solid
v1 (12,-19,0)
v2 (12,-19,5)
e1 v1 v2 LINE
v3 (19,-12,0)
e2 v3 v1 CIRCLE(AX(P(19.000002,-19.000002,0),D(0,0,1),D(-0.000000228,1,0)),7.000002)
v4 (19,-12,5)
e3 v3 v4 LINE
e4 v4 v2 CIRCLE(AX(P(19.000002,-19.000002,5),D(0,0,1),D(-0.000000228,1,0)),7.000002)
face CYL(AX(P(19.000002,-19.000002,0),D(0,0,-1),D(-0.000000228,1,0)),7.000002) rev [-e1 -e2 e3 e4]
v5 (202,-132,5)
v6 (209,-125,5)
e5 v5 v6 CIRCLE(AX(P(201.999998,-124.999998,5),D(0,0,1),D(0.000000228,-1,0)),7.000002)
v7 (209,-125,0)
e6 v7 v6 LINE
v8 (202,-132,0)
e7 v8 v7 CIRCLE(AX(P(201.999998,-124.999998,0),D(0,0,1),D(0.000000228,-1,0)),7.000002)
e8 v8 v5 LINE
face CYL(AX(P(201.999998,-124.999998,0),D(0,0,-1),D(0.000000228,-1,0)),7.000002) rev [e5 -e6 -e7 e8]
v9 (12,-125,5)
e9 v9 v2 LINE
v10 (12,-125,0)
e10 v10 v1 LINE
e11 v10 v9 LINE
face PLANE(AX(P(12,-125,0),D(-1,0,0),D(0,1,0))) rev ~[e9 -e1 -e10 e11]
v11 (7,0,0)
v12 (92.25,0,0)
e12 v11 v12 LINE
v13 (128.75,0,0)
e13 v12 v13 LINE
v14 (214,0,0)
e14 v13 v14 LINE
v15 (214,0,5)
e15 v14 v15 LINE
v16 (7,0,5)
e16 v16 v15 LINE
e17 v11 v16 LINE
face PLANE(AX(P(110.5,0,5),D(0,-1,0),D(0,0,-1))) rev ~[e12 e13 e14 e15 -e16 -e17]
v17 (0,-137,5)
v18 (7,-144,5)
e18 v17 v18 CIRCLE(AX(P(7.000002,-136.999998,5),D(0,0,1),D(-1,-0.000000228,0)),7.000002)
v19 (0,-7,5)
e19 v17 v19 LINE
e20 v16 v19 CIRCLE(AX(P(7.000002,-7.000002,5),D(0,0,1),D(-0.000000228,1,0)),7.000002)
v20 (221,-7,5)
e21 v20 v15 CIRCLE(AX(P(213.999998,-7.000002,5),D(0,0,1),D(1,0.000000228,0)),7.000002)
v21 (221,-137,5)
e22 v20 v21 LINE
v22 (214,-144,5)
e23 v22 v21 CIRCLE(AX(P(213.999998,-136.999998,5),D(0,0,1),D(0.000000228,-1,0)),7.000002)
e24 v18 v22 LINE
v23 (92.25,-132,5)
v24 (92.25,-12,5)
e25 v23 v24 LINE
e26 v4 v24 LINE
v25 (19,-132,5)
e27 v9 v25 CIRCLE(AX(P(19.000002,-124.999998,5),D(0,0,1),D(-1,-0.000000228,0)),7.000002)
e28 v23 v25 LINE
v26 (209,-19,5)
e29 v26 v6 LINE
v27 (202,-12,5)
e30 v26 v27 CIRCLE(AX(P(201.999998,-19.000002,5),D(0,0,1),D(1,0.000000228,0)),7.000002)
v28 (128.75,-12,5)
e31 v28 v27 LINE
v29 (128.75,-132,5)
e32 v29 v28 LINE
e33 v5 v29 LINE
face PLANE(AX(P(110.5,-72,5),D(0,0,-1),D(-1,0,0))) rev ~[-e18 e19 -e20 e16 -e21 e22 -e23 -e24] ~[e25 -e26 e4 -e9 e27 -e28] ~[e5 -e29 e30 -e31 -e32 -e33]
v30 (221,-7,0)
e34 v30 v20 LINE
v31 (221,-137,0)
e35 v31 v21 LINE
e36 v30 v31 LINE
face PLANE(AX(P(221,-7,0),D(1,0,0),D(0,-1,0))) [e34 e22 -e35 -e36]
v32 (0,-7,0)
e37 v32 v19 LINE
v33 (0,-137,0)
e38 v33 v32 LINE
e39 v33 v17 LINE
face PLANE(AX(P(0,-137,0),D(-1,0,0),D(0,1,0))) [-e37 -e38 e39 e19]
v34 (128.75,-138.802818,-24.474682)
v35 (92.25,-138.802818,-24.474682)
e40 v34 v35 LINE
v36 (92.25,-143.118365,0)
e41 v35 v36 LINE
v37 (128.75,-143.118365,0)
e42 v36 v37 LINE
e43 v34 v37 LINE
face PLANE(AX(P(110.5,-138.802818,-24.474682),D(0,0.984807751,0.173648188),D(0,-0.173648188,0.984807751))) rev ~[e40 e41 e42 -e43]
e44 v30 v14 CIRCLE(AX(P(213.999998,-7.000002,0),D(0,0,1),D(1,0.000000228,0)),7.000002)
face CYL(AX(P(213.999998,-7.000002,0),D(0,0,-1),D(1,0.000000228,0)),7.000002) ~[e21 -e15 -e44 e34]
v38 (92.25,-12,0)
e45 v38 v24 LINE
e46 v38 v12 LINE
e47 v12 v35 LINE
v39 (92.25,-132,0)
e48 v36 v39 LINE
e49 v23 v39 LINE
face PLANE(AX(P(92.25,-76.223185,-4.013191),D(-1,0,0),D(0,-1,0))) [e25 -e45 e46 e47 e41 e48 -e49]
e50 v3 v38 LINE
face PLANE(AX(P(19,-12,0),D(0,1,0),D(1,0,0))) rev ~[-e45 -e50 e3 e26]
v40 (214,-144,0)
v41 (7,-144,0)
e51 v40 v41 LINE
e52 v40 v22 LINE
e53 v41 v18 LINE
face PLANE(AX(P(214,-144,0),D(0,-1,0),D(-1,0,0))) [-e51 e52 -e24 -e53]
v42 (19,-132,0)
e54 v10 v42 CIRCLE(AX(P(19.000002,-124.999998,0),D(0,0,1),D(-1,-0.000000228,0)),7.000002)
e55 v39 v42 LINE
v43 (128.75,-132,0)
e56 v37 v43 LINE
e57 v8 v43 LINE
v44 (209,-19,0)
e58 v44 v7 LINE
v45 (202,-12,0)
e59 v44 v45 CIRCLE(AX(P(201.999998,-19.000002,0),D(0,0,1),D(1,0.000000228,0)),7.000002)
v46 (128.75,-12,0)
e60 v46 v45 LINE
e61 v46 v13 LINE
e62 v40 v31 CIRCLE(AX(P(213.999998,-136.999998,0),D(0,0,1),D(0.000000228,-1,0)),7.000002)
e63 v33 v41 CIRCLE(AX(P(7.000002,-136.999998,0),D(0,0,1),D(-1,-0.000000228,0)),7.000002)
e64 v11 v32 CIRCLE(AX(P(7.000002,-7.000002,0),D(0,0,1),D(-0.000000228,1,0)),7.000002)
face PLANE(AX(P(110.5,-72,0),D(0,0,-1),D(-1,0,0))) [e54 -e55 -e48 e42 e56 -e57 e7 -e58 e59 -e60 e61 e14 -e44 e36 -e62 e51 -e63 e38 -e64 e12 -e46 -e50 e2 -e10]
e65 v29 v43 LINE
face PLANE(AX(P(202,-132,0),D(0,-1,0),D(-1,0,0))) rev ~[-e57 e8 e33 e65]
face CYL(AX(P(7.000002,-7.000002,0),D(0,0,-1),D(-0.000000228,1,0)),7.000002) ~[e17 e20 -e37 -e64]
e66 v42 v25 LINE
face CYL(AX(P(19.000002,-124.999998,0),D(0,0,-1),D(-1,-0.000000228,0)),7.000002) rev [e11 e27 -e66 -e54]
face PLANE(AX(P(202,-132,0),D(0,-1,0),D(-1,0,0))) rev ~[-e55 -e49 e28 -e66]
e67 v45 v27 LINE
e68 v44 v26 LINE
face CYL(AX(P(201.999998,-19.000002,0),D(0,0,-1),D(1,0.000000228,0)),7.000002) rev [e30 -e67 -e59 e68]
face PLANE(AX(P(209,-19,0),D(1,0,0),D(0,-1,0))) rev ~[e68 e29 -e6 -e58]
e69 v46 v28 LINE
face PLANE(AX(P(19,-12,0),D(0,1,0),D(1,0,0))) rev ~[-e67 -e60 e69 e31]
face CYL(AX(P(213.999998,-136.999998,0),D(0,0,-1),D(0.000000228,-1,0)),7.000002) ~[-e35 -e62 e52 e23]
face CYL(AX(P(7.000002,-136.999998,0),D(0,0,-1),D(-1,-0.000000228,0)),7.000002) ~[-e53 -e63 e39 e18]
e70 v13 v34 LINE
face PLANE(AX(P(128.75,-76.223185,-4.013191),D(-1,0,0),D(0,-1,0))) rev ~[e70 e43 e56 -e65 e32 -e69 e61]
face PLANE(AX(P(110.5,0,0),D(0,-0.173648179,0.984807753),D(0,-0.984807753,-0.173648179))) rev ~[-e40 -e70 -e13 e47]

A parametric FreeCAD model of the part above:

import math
import FreeCAD as App
import Part
import Sketcher

V = App.Vector
Q = App.Units.Quantity


def add_polygon(sketch, points):
    """Adds a closed chain of lines whose ends are joined by coincident constraints."""
    first, n = sketch.GeometryCount, len(points)
    for a, b in zip(points, points[1:] + points[:1]):
        sketch.addGeometry(Part.LineSegment(App.Vector(*a, 0), App.Vector(*b, 0)), False)
    for i in range(n):
        sketch.addConstraint(Sketcher.Constraint("Coincident", first + i, 2, first + (i + 1) % n, 1))

doc = App.newDocument("Part")
params = doc.addObject("Spreadsheet::Sheet", "Params")
for row, (alias, value) in enumerate([
    ("sketch1_radius", "7.000002 mm"),
    ("sketch1_width", "207 mm"),
    ("sketch1_width2", "183 mm"),
    ("sketch1_height", "130 mm"),
    ("sketch1_height2", "106 mm"),
    ("pad1_length", "5 mm"),
    ("sketch2_width", "144 mm"),
    ("sketch2_height", "5 mm"),
    ("pad2_length", "36.5 mm"),
], start=1):
    params.set(f"A{row}", alias)
    params.set(f"B{row}", "=" + value)
    params.setAlias(f"B{row}", alias)

body = doc.addObject("PartDesign::Body", "Body")

# Sketch on XY plane
sketch1 = body.newObject("Sketcher::SketchObject", "Sketch")
sketch1.AttachmentSupport = (doc.getObject("XY_Plane"), [""])
sketch1.MapMode = "FlatFace"
sketch1.addGeometry([
    Part.LineSegment(V(214, 0, 0), V(7, 0, 0)),  # 0
    Part.ArcOfCircle(Part.Circle(V(7, -7, 0), V(0, 0, 1), 7), math.radians(90), math.radians(180)),  # 1
    Part.LineSegment(V(0, -7, 0), V(0, -137, 0)),  # 2
    Part.ArcOfCircle(Part.Circle(V(7, -137, 0), V(0, 0, 1), 7), math.radians(-180), math.radians(-90)),  # 3
    Part.LineSegment(V(7, -144, 0), V(214, -144, 0)),  # 4
    Part.ArcOfCircle(Part.Circle(V(214, -137, 0), V(0, 0, 1), 7), math.radians(-90), math.radians(0)),  # 5
    Part.LineSegment(V(221, -137, 0), V(221, -7, 0)),  # 6
    Part.ArcOfCircle(Part.Circle(V(214, -7, 0), V(0, 0, 1), 7), math.radians(0), math.radians(90)),  # 7
    Part.LineSegment(V(19, -12, 0), V(202, -12, 0)),  # 8
    Part.ArcOfCircle(Part.Circle(V(202, -19, 0), V(0, 0, 1), 7), math.radians(0), math.radians(90)),  # 9
    Part.LineSegment(V(209, -19, 0), V(209, -125, 0)),  # 10
    Part.ArcOfCircle(Part.Circle(V(202, -125, 0), V(0, 0, 1), 7), math.radians(-90), math.radians(0)),  # 11
    Part.LineSegment(V(202, -132, 0), V(19, -132, 0)),  # 12
    Part.ArcOfCircle(Part.Circle(V(19, -125, 0), V(0, 0, 1), 7), math.radians(-180), math.radians(-90)),  # 13
    Part.LineSegment(V(12, -125, 0), V(12, -19, 0)),  # 14
    Part.ArcOfCircle(Part.Circle(V(19, -19, 0), V(0, 0, 1), 7), math.radians(90), math.radians(180)),  # 15
], False)
sketch1.addConstraint([
    Sketcher.Constraint("Tangent", 0, 2, 1, 1),
    Sketcher.Constraint("Tangent", 1, 2, 2, 1),
    Sketcher.Constraint("Tangent", 2, 2, 3, 1),
    Sketcher.Constraint("Tangent", 3, 2, 4, 1),
    Sketcher.Constraint("Tangent", 4, 2, 5, 1),
    Sketcher.Constraint("Tangent", 5, 2, 6, 1),
    Sketcher.Constraint("Tangent", 6, 2, 7, 1),
    Sketcher.Constraint("Tangent", 7, 2, 0, 1),
    Sketcher.Constraint("Tangent", 8, 2, 9, 2),
    Sketcher.Constraint("Tangent", 9, 1, 10, 1),
    Sketcher.Constraint("Tangent", 10, 2, 11, 2),
    Sketcher.Constraint("Tangent", 11, 1, 12, 1),
    Sketcher.Constraint("Tangent", 12, 2, 13, 2),
    Sketcher.Constraint("Tangent", 13, 1, 14, 1),
    Sketcher.Constraint("Tangent", 14, 2, 15, 2),
    Sketcher.Constraint("Tangent", 15, 1, 8, 1),
    Sketcher.Constraint("Horizontal", 0),
    Sketcher.Constraint("Vertical", 2),
    Sketcher.Constraint("Horizontal", 4),
    Sketcher.Constraint("Vertical", 6),
    Sketcher.Constraint("Horizontal", 8),
    Sketcher.Constraint("Vertical", 10),
    Sketcher.Constraint("Horizontal", 12),
    Sketcher.Constraint("Vertical", 14),
    Sketcher.Constraint("Equal", 1, 3),
    Sketcher.Constraint("Equal", 3, 5),
    Sketcher.Constraint("Equal", 5, 7),
    Sketcher.Constraint("Equal", 7, 9),
    Sketcher.Constraint("Equal", 9, 11),
    Sketcher.Constraint("Equal", 11, 13),
    Sketcher.Constraint("Equal", 13, 15),
    Sketcher.Constraint("PointOnObject", 0, 2, -1),
    Sketcher.Constraint("PointOnObject", 1, 2, -2),
    Sketcher.Constraint("Radius", 1, 7.000002),
    Sketcher.Constraint("DistanceX", 0, 2, 0, 1, 207.0),
    Sketcher.Constraint("DistanceX", 8, 1, 8, 2, 183.0),
    Sketcher.Constraint("DistanceY", 2, 2, 2, 1, 130.0),
    Sketcher.Constraint("DistanceY", 10, 2, 10, 1, 106.0),
    Sketcher.Constraint("DistanceX", -1, 1, 9, 3, 201.999998),
    Sketcher.Constraint("DistanceY", 9, 3, -1, 1, 19.000002),
])
sketch1.setExpression("Constraints[33]", "Params.sketch1_radius")
sketch1.setExpression("Constraints[34]", "Params.sketch1_width")
sketch1.setExpression("Constraints[35]", "Params.sketch1_width2")
sketch1.setExpression("Constraints[36]", "Params.sketch1_height")
sketch1.setExpression("Constraints[37]", "Params.sketch1_height2")
pad1 = body.newObject("PartDesign::Pad", "Pad")
pad1.Profile = sketch1
pad1.setExpression("Length", "Params.pad1_length")

# Sketch on YZ plane
sketch2 = body.newObject("Sketcher::SketchObject", "Sketch001")
sketch2.AttachmentSupport = (doc.getObject("YZ_Plane"), [""])
sketch2.MapMode = "FlatFace"
sketch2.AttachmentOffset = App.Placement(V(0, 0, 110.5), App.Rotation())
add_polygon(sketch2, [(-139, -24), (0, 0), (0, 5), (-144, 5)])  # lines 0-3
sketch2.addConstraint([
    Sketcher.Constraint("Vertical", 1),
    Sketcher.Constraint("Horizontal", 2),
    Sketcher.Constraint("Coincident", 0, 2, -1, 1),
    Sketcher.Constraint("Perpendicular", 0, 3),
    Sketcher.Constraint("DistanceX", 2, 2, 2, 1, 144.0),
    Sketcher.Constraint("DistanceY", 1, 1, 1, 2, 5.0),
    Sketcher.Constraint("Angle", 0, Q("10 deg")),
])
sketch2.setExpression("Constraints[8]", "Params.sketch2_width")
sketch2.setExpression("Constraints[9]", "Params.sketch2_height")
pad2 = body.newObject("PartDesign::Pad", "Pad001")
pad2.Profile = sketch2
pad2.setExpression("Length", "Params.pad2_length")
pad2.Midplane = True

doc.recompute()
